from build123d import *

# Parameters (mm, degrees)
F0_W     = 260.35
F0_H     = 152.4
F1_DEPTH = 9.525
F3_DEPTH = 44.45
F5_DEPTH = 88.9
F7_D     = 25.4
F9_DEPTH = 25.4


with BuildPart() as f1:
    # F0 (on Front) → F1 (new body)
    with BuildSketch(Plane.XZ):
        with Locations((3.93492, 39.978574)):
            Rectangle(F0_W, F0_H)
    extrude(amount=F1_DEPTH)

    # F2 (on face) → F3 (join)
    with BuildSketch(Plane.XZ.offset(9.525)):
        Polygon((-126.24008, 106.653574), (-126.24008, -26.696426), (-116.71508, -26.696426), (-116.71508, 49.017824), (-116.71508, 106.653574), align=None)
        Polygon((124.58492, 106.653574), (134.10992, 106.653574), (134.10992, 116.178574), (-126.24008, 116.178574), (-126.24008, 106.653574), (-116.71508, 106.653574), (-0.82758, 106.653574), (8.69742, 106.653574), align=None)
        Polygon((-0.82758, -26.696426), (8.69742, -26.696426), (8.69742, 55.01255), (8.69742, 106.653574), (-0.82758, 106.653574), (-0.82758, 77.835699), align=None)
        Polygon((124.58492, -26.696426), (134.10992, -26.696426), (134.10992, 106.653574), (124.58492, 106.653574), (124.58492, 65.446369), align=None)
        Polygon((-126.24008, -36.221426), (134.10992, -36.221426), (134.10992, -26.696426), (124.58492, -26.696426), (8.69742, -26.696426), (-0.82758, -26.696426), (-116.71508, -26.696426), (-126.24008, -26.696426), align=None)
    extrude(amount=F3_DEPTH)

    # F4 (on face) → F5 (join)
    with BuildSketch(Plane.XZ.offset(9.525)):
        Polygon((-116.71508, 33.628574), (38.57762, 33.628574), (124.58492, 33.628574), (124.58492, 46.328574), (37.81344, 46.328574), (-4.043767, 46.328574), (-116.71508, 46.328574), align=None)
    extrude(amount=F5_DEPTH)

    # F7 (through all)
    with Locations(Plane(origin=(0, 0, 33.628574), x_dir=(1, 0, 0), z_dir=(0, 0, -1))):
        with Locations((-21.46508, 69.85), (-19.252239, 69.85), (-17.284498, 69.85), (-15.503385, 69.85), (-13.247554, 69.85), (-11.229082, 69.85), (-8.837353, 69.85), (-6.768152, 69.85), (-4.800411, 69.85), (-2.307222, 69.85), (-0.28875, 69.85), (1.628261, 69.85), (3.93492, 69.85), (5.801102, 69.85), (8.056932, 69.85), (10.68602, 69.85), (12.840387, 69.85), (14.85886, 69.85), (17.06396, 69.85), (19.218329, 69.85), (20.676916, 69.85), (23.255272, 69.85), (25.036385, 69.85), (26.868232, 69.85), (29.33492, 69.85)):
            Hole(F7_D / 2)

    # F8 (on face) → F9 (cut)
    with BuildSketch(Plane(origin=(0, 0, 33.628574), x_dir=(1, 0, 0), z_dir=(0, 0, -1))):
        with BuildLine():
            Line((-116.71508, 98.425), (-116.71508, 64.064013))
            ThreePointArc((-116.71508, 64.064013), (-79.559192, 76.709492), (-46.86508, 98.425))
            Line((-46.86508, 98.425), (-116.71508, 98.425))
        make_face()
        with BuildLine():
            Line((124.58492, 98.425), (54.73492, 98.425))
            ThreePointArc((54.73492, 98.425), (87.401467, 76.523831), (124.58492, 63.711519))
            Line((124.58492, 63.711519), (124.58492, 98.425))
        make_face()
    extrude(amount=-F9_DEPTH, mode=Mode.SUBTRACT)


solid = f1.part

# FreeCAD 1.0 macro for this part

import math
import FreeCAD as App
import Part
import Sketcher
Q = App.Units.Quantity

doc = App.newDocument("Part")
params = doc.addObject("Spreadsheet::Sheet", "Params")
for row, (alias, value) in enumerate([
    ("sketch1_height", "6 in"),
    ("sketch1_width", "10.25 in"),
    ("pad1_length", "0.375 in"),
    ("sketch2_height", "6 in"),
    ("sketch2_width", "10.25 in"),
    ("sketch2_height2", "5.25 in"),
    ("sketch2_width2", "4.5625 in"),
    ("pad2_length", "1.75 in"),
    ("sketch3_width", "9.5 in"),
    ("sketch3_height", "0.5 in"),
    ("pad3_length", "3.5 in"),
    ("sketch4_diameter", "1 in"),
    ("hole_diameter", "1 in"),
    ("sketch5_width", "2.75 in"),
    ("pocket1_length", "1 in"),
], start=1):
    params.set(f"A{row}", alias)
    params.set(f"B{row}", "=" + value)
    params.setAlias(f"B{row}", alias)

body = doc.addObject("PartDesign::Body", "Body")

# Sketch on XZ plane
sketch1 = doc.addObject("Sketcher::SketchObject", "Sketch")
body.addObject(sketch1)
sketch1.AttachmentSupport = (doc.XZ_Plane, [""])
sketch1.MapMode = "FlatFace"
sketch1.addGeometry(Part.LineSegment(App.Vector(-126, 116, 0), App.Vector(-126, -36, 0)), False)
sketch1.addGeometry(Part.LineSegment(App.Vector(-126, -36, 0), App.Vector(134, -36, 0)), False)
sketch1.addGeometry(Part.LineSegment(App.Vector(134, -36, 0), App.Vector(134, 116, 0)), False)
sketch1.addGeometry(Part.LineSegment(App.Vector(134, 116, 0), App.Vector(-126, 116, 0)), False)
sketch1.addConstraint(Sketcher.Constraint("Coincident", 0, 2, 1, 1))
sketch1.addConstraint(Sketcher.Constraint("Coincident", 1, 2, 2, 1))
sketch1.addConstraint(Sketcher.Constraint("Coincident", 2, 2, 3, 1))
sketch1.addConstraint(Sketcher.Constraint("Coincident", 3, 2, 0, 1))
sketch1.addConstraint(Sketcher.Constraint("Vertical", 0))
sketch1.addConstraint(Sketcher.Constraint("Horizontal", 1))
sketch1.addConstraint(Sketcher.Constraint("Vertical", 2))
sketch1.addConstraint(Sketcher.Constraint("Horizontal", 3))
sketch1.addConstraint(Sketcher.Constraint("DistanceY", 0, 2, 0, 1, Q("6 in")))
sketch1.addConstraint(Sketcher.Constraint("DistanceX", 1, 1, 1, 2, Q("10.25 in")))
sketch1.addConstraint(Sketcher.Constraint("DistanceX", 0, 2, -1, 1, 126.24008))
sketch1.addConstraint(Sketcher.Constraint("DistanceY", 0, 2, -1, 1, 36.221426))
sketch1.setExpression("Constraints[8]", "Params.sketch1_height")
sketch1.setExpression("Constraints[9]", "Params.sketch1_width")
pad1 = doc.addObject("PartDesign::Pad", "Pad")
body.addObject(pad1)
pad1.Profile = sketch1
pad1.setExpression("Length", "Params.pad1_length")

# Sketch on XZ plane
sketch2 = doc.addObject("Sketcher::SketchObject", "Sketch001")
body.addObject(sketch2)
sketch2.AttachmentSupport = (doc.XZ_Plane, [""])
sketch2.MapMode = "FlatFace"
sketch2.AttachmentOffset = App.Placement(App.Vector(0, 0, 0.375 * 25.4), App.Rotation())
sketch2.addGeometry(Part.LineSegment(App.Vector(134, 116, 0), App.Vector(-126, 116, 0)), False)
sketch2.addGeometry(Part.LineSegment(App.Vector(-126, 116, 0), App.Vector(-126, -36, 0)), False)
sketch2.addGeometry(Part.LineSegment(App.Vector(-126, -36, 0), App.Vector(134, -36, 0)), False)
sketch2.addGeometry(Part.LineSegment(App.Vector(134, -36, 0), App.Vector(134, 116, 0)), False)
sketch2.addGeometry(Part.LineSegment(App.Vector(-117, -27, 0), App.Vector(-117, 107, 0)), False)
sketch2.addGeometry(Part.LineSegment(App.Vector(-117, 107, 0), App.Vector(-1, 107, 0)), False)
sketch2.addGeometry(Part.LineSegment(App.Vector(-1, 107, 0), App.Vector(-1, -27, 0)), False)
sketch2.addGeometry(Part.LineSegment(App.Vector(-1, -27, 0), App.Vector(-117, -27, 0)), False)
sketch2.addGeometry(Part.LineSegment(App.Vector(9, -27, 0), App.Vector(9, 107, 0)), False)
sketch2.addGeometry(Part.LineSegment(App.Vector(9, 107, 0), App.Vector(125, 107, 0)), False)
sketch2.addGeometry(Part.LineSegment(App.Vector(125, 107, 0), App.Vector(125, -27, 0)), False)
sketch2.addGeometry(Part.LineSegment(App.Vector(125, -27, 0), App.Vector(9, -27, 0)), False)
sketch2.addConstraint(Sketcher.Constraint("Coincident", 0, 2, 1, 1))
sketch2.addConstraint(Sketcher.Constraint("Coincident", 1, 2, 2, 1))
sketch2.addConstraint(Sketcher.Constraint("Coincident", 2, 2, 3, 1))
sketch2.addConstraint(Sketcher.Constraint("Coincident", 3, 2, 0, 1))
sketch2.addConstraint(Sketcher.Constraint("Coincident", 4, 2, 5, 1))
sketch2.addConstraint(Sketcher.Constraint("Coincident", 5, 2, 6, 1))
sketch2.addConstraint(Sketcher.Constraint("Coincident", 6, 2, 7, 1))
sketch2.addConstraint(Sketcher.Constraint("Coincident", 7, 2, 4, 1))
sketch2.addConstraint(Sketcher.Constraint("Coincident", 8, 2, 9, 1))
sketch2.addConstraint(Sketcher.Constraint("Coincident", 9, 2, 10, 1))
sketch2.addConstraint(Sketcher.Constraint("Coincident", 10, 2, 11, 1))
sketch2.addConstraint(Sketcher.Constraint("Coincident", 11, 2, 8, 1))
sketch2.addConstraint(Sketcher.Constraint("Horizontal", 0))
sketch2.addConstraint(Sketcher.Constraint("Vertical", 1))
sketch2.addConstraint(Sketcher.Constraint("Horizontal", 2))
sketch2.addConstraint(Sketcher.Constraint("Vertical", 3))
sketch2.addConstraint(Sketcher.Constraint("Vertical", 4))
sketch2.addConstraint(Sketcher.Constraint("Horizontal", 5))
sketch2.addConstraint(Sketcher.Constraint("Vertical", 6))
sketch2.addConstraint(Sketcher.Constraint("Horizontal", 7))
sketch2.addConstraint(Sketcher.Constraint("Vertical", 8))
sketch2.addConstraint(Sketcher.Constraint("Horizontal", 9))
sketch2.addConstraint(Sketcher.Constraint("Vertical", 10))
sketch2.addConstraint(Sketcher.Constraint("Horizontal", 11))
sketch2.addConstraint(Sketcher.Constraint("Horizontal", 5, 2, 8, 2))
sketch2.addConstraint(Sketcher.Constraint("Horizontal", 7, 2, 10, 2))
sketch2.addConstraint(Sketcher.Constraint("Equal", 7, 9))
sketch2.addConstraint(Sketcher.Constraint("DistanceY", 1, 2, 1, 1, Q("6 in")))
sketch2.addConstraint(Sketcher.Constraint("DistanceX", 0, 2, 0, 1, Q("10.25 in")))
sketch2.addConstraint(Sketcher.Constraint("DistanceY", 4, 1, 4, 2, Q("5.25 in")))
sketch2.addConstraint(Sketcher.Constraint("DistanceX", 5, 1, 5, 2, Q("4.5625 in")))
sketch2.addConstraint(Sketcher.Constraint("DistanceX", 0, 2, 4, 2, Q("0.375 in")))
sketch2.addConstraint(Sketcher.Constraint("DistanceY", 4, 2, 0, 2, Q("0.375 in")))
sketch2.addConstraint(Sketcher.Constraint("DistanceX", 5, 2, 8, 2, Q("0.375 in")))
sketch2.addConstraint(Sketcher.Constraint("DistanceX", 0, 2, -1, 1, 126.24008))
sketch2.addConstraint(Sketcher.Constraint("DistanceY", -1, 1, 0, 2, 116.178574))
sketch2.setExpression("Constraints[27]", "Params.sketch2_height")
sketch2.setExpression("Constraints[28]", "Params.sketch2_width")
sketch2.setExpression("Constraints[29]", "Params.sketch2_height2")
sketch2.setExpression("Constraints[30]", "Params.sketch2_width2")
pad2 = doc.addObject("PartDesign::Pad", "Pad001")
body.addObject(pad2)
pad2.Profile = sketch2
pad2.setExpression("Length", "Params.pad2_length")

# Sketch on XZ plane
sketch3 = doc.addObject("Sketcher::SketchObject", "Sketch002")
body.addObject(sketch3)
sketch3.AttachmentSupport = (doc.XZ_Plane, [""])
sketch3.MapMode = "FlatFace"
sketch3.AttachmentOffset = App.Placement(App.Vector(0, 0, 0.375 * 25.4), App.Rotation())
sketch3.addGeometry(Part.LineSegment(App.Vector(-117, 34, 0), App.Vector(125, 34, 0)), False)
sketch3.addGeometry(Part.LineSegment(App.Vector(125, 34, 0), App.Vector(125, 46, 0)), False)
sketch3.addGeometry(Part.LineSegment(App.Vector(125, 46, 0), App.Vector(-117, 46, 0)), False)
sketch3.addGeometry(Part.LineSegment(App.Vector(-117, 46, 0), App.Vector(-117, 34, 0)), False)
sketch3.addConstraint(Sketcher.Constraint("Coincident", 0, 2, 1, 1))
sketch3.addConstraint(Sketcher.Constraint("Coincident", 1, 2, 2, 1))
sketch3.addConstraint(Sketcher.Constraint("Coincident", 2, 2, 3, 1))
sketch3.addConstraint(Sketcher.Constraint("Coincident", 3, 2, 0, 1))
sketch3.addConstraint(Sketcher.Constraint("Horizontal", 0))
sketch3.addConstraint(Sketcher.Constraint("Vertical", 1))
sketch3.addConstraint(Sketcher.Constraint("Horizontal", 2))
sketch3.addConstraint(Sketcher.Constraint("Vertical", 3))
sketch3.addConstraint(Sketcher.Constraint("DistanceX", 0, 1, 0, 2, Q("9.5 in")))
sketch3.addConstraint(Sketcher.Constraint("DistanceY", 1, 1, 1, 2, Q("0.5 in")))
sketch3.addConstraint(Sketcher.Constraint("DistanceX", -1, 1, 0, 2, 124.58492))
sketch3.addConstraint(Sketcher.Constraint("DistanceY", -1, 1, 0, 2, 33.628574))
sketch3.setExpression("Constraints[8]", "Params.sketch3_width")
sketch3.setExpression("Constraints[9]", "Params.sketch3_height")
pad3 = doc.addObject("PartDesign::Pad", "Pad002")
body.addObject(pad3)
pad3.Profile = sketch3
pad3.setExpression("Length", "Params.pad3_length")

# Sketch on XY plane
sketch4 = doc.addObject("Sketcher::SketchObject", "Sketch003")
body.addObject(sketch4)
sketch4.AttachmentSupport = (doc.XY_Plane, [""])
sketch4.MapMode = "FlatFace"
sketch4.AttachmentOffset = App.Placement(App.Vector(0, 0, 33.628574), App.Rotation())
sketch4.addGeometry(Part.Circle(App.Vector(-21, -70, 0), App.Vector(0, 0, 1), 13), False)
sketch4.addGeometry(Part.Circle(App.Vector(-19, -70, 0), App.Vector(0, 0, 1), 13), False)
sketch4.addGeometry(Part.Circle(App.Vector(-17, -70, 0), App.Vector(0, 0, 1), 13), False)
sketch4.addGeometry(Part.Circle(App.Vector(-16, -70, 0), App.Vector(0, 0, 1), 13), False)
sketch4.addGeometry(Part.Circle(App.Vector(-13, -70, 0), App.Vector(0, 0, 1), 13), False)
sketch4.addGeometry(Part.Circle(App.Vector(-11, -70, 0), App.Vector(0, 0, 1), 13), False)
sketch4.addGeometry(Part.Circle(App.Vector(-9, -70, 0), App.Vector(0, 0, 1), 13), False)
sketch4.addGeometry(Part.Circle(App.Vector(-7, -70, 0), App.Vector(0, 0, 1), 13), False)
sketch4.addGeometry(Part.Circle(App.Vector(-5, -70, 0), App.Vector(0, 0, 1), 13), False)
sketch4.addGeometry(Part.Circle(App.Vector(-2, -70, 0), App.Vector(0, 0, 1), 13), False)
sketch4.addGeometry(Part.Circle(App.Vector(0, -70, 0), App.Vector(0, 0, 1), 13), False)
sketch4.addGeometry(Part.Circle(App.Vector(2, -70, 0), App.Vector(0, 0, 1), 13), False)
sketch4.addGeometry(Part.Circle(App.Vector(4, -70, 0), App.Vector(0, 0, 1), 13), False)
sketch4.addGeometry(Part.Circle(App.Vector(6, -70, 0), App.Vector(0, 0, 1), 13), False)
sketch4.addGeometry(Part.Circle(App.Vector(8, -70, 0), App.Vector(0, 0, 1), 13), False)
sketch4.addGeometry(Part.Circle(App.Vector(11, -70, 0), App.Vector(0, 0, 1), 13), False)
sketch4.addGeometry(Part.Circle(App.Vector(13, -70, 0), App.Vector(0, 0, 1), 13), False)
sketch4.addGeometry(Part.Circle(App.Vector(15, -70, 0), App.Vector(0, 0, 1), 13), False)
sketch4.addGeometry(Part.Circle(App.Vector(17, -70, 0), App.Vector(0, 0, 1), 13), False)
sketch4.addGeometry(Part.Circle(App.Vector(19, -70, 0), App.Vector(0, 0, 1), 13), False)
sketch4.addGeometry(Part.Circle(App.Vector(21, -70, 0), App.Vector(0, 0, 1), 13), False)
sketch4.addGeometry(Part.Circle(App.Vector(23, -70, 0), App.Vector(0, 0, 1), 13), False)
sketch4.addGeometry(Part.Circle(App.Vector(25, -70, 0), App.Vector(0, 0, 1), 13), False)
sketch4.addGeometry(Part.Circle(App.Vector(27, -70, 0), App.Vector(0, 0, 1), 13), False)
sketch4.addGeometry(Part.Circle(App.Vector(29, -70, 0), App.Vector(0, 0, 1), 13), False)
sketch4.addConstraint(Sketcher.Constraint("Equal", 0, 1))
sketch4.addConstraint(Sketcher.Constraint("Equal", 1, 2))
sketch4.addConstraint(Sketcher.Constraint("Equal", 2, 3))
sketch4.addConstraint(Sketcher.Constraint("Equal", 3, 4))
sketch4.addConstraint(Sketcher.Constraint("Equal", 4, 5))
sketch4.addConstraint(Sketcher.Constraint("Equal", 5, 6))
sketch4.addConstraint(Sketcher.Constraint("Equal", 6, 7))
sketch4.addConstraint(Sketcher.Constraint("Equal", 7, 8))
sketch4.addConstraint(Sketcher.Constraint("Equal", 8, 9))
sketch4.addConstraint(Sketcher.Constraint("Equal", 9, 10))
sketch4.addConstraint(Sketcher.Constraint("Equal", 10, 11))
sketch4.addConstraint(Sketcher.Constraint("Equal", 11, 12))
sketch4.addConstraint(Sketcher.Constraint("Equal", 12, 13))
sketch4.addConstraint(Sketcher.Constraint("Equal", 13, 14))
sketch4.addConstraint(Sketcher.Constraint("Equal", 14, 15))
sketch4.addConstraint(Sketcher.Constraint("Equal", 15, 16))
sketch4.addConstraint(Sketcher.Constraint("Equal", 16, 17))
sketch4.addConstraint(Sketcher.Constraint("Equal", 17, 18))
sketch4.addConstraint(Sketcher.Constraint("Equal", 18, 19))
sketch4.addConstraint(Sketcher.Constraint("Equal", 19, 20))
sketch4.addConstraint(Sketcher.Constraint("Equal", 20, 21))
sketch4.addConstraint(Sketcher.Constraint("Equal", 21, 22))
sketch4.addConstraint(Sketcher.Constraint("Equal", 22, 23))
sketch4.addConstraint(Sketcher.Constraint("Equal", 23, 24))
sketch4.addConstraint(Sketcher.Constraint("Horizontal", 0, 3, 1, 3))
sketch4.addConstraint(Sketcher.Constraint("Horizontal", 1, 3, 2, 3))
sketch4.addConstraint(Sketcher.Constraint("Horizontal", 2, 3, 3, 3))
sketch4.addConstraint(Sketcher.Constraint("Horizontal", 3, 3, 4, 3))
sketch4.addConstraint(Sketcher.Constraint("Horizontal", 4, 3, 5, 3))
sketch4.addConstraint(Sketcher.Constraint("Horizontal", 5, 3, 6, 3))
sketch4.addConstraint(Sketcher.Constraint("Horizontal", 6, 3, 7, 3))
sketch4.addConstraint(Sketcher.Constraint("Horizontal", 7, 3, 8, 3))
sketch4.addConstraint(Sketcher.Constraint("Horizontal", 8, 3, 9, 3))
sketch4.addConstraint(Sketcher.Constraint("Horizontal", 9, 3, 10, 3))
sketch4.addConstraint(Sketcher.Constraint("Horizontal", 10, 3, 11, 3))
sketch4.addConstraint(Sketcher.Constraint("Horizontal", 11, 3, 12, 3))
sketch4.addConstraint(Sketcher.Constraint("Horizontal", 12, 3, 13, 3))
sketch4.addConstraint(Sketcher.Constraint("Horizontal", 13, 3, 14, 3))
sketch4.addConstraint(Sketcher.Constraint("Horizontal", 14, 3, 15, 3))
sketch4.addConstraint(Sketcher.Constraint("Horizontal", 15, 3, 16, 3))
sketch4.addConstraint(Sketcher.Constraint("Horizontal", 16, 3, 17, 3))
sketch4.addConstraint(Sketcher.Constraint("Horizontal", 17, 3, 18, 3))
sketch4.addConstraint(Sketcher.Constraint("Horizontal", 18, 3, 19, 3))
sketch4.addConstraint(Sketcher.Constraint("Horizontal", 19, 3, 20, 3))
sketch4.addConstraint(Sketcher.Constraint("Horizontal", 20, 3, 21, 3))
sketch4.addConstraint(Sketcher.Constraint("Horizontal", 21, 3, 22, 3))
sketch4.addConstraint(Sketcher.Constraint("Horizontal", 22, 3, 23, 3))
sketch4.addConstraint(Sketcher.Constraint("Horizontal", 23, 3, 24, 3))
sketch4.addConstraint(Sketcher.Constraint("Diameter", 0, Q("1 in")))
sketch4.addConstraint(Sketcher.Constraint("DistanceY", 0, 3, -1, 1, Q("2.75 in")))
sketch4.addConstraint(Sketcher.Constraint("DistanceX", 15, 3, 18, 3, Q("0.2511 in")))
sketch4.addConstraint(Sketcher.Constraint("DistanceX", 16, 3, 19, 3, Q("0.2511001 in")))
sketch4.addConstraint(Sketcher.Constraint("DistanceX", 4, 3, 6, 3, 4.410201))
sketch4.addConstraint(Sketcher.Constraint("DistanceX", 6, 3, 7, 3, 2.069201))
sketch4.addConstraint(Sketcher.Constraint("DistanceX", 7, 3, 10, 3, 6.479402))
sketch4.addConstraint(Sketcher.Constraint("DistanceX", 12, 3, 15, 3, 6.7511))
sketch4.addConstraint(Sketcher.Constraint("DistanceX", 17, 3, 18, 3, 2.2051))
sketch4.addConstraint(Sketcher.Constraint("DistanceX", 0, 3, -1, 1, 21.46508))
sketch4.addConstraint(Sketcher.Constraint("DistanceX", 1, 3, -1, 1, 19.252239))
sketch4.addConstraint(Sketcher.Constraint("DistanceX", 7, 3, -1, 1, 6.768152))
sketch4.addConstraint(Sketcher.Constraint("DistanceX", 8, 3, -1, 1, 4.800411))
sketch4.addConstraint(Sketcher.Constraint("DistanceX", 9, 3, -1, 1, 2.307222))
sketch4.addConstraint(Sketcher.Constraint("DistanceX", -1, 1, 11, 3, 1.628261))
sketch4.addConstraint(Sketcher.Constraint("DistanceX", -1, 1, 12, 3, 3.93492))
sketch4.addConstraint(Sketcher.Constraint("DistanceX", -1, 1, 19, 3, 19.218329))
sketch4.addConstraint(Sketcher.Constraint("DistanceX", -1, 1, 23, 3, 26.868232))
sketch4.addConstraint(Sketcher.Constraint("DistanceX", -1, 1, 24, 3, 29.33492))
sketch4.addConstraint(Sketcher.Constraint("DistanceX", 1, 3, 2, 3, 1.967741))
sketch4.addConstraint(Sketcher.Constraint("DistanceX", 3, 3, 4, 3, 2.255831))
sketch4.addConstraint(Sketcher.Constraint("DistanceX", 4, 3, 5, 3, 2.018472))
sketch4.addConstraint(Sketcher.Constraint("DistanceX", 11, 3, 13, 3, 4.172841))
sketch4.addConstraint(Sketcher.Constraint("DistanceX", 13, 3, 14, 3, 2.25583))
sketch4.addConstraint(Sketcher.Constraint("DistanceX", 16, 3, 20, 3, 7.836529))
sketch4.addConstraint(Sketcher.Constraint("DistanceX", 20, 3, 22, 3, 4.359469))
sketch4.addConstraint(Sketcher.Constraint("DistanceX", 21, 3, 23, 3, 3.61296))
sketch4.setExpression("Constraints[48]", "Params.sketch4_diameter")
doc.recompute()
hole = doc.addObject("PartDesign::Hole", "Hole")
body.addObject(hole)
hole.Profile = sketch4
hole.ThreadType = "None"
hole.setExpression("Diameter", "Params.hole_diameter")
hole.DepthType = "ThroughAll"
hole.Reversed = True

# Sketch on XY plane
sketch5 = doc.addObject("Sketcher::SketchObject", "Sketch004")
body.addObject(sketch5)
sketch5.AttachmentSupport = (doc.XY_Plane, [""])
sketch5.MapMode = "FlatFace"
sketch5.AttachmentOffset = App.Placement(App.Vector(0, 0, 33.628574), App.Rotation())
sketch5.addGeometry(Part.LineSegment(App.Vector(-117, -98, 0), App.Vector(-117, -64, 0)), False)
sketch5.addGeometry(Part.ArcOfCircle(Part.Circle(App.Vector(-147, -213, 0), App.Vector(0, 0, 1), 152), math.radians(49), math.radians(79)), False)
sketch5.addGeometry(Part.LineSegment(App.Vector(-47, -98, 0), App.Vector(-117, -98, 0)), False)
sketch5.addGeometry(Part.LineSegment(App.Vector(125, -98, 0), App.Vector(55, -98, 0)), False)
sketch5.addGeometry(Part.ArcOfCircle(Part.Circle(App.Vector(155, -213, 0), App.Vector(0, 0, 1), 152), math.radians(102), math.radians(131)), False)
sketch5.addGeometry(Part.LineSegment(App.Vector(125, -64, 0), App.Vector(125, -98, 0)), False)
sketch5.addConstraint(Sketcher.Constraint("Coincident", 0, 2, 1, 2))
sketch5.addConstraint(Sketcher.Constraint("Coincident", 1, 1, 2, 1))
sketch5.addConstraint(Sketcher.Constraint("Coincident", 2, 2, 0, 1))
sketch5.addConstraint(Sketcher.Constraint("Coincident", 3, 2, 4, 2))
sketch5.addConstraint(Sketcher.Constraint("Coincident", 4, 1, 5, 1))
sketch5.addConstraint(Sketcher.Constraint("Coincident", 5, 2, 3, 1))
sketch5.addConstraint(Sketcher.Constraint("Vertical", 0))
sketch5.addConstraint(Sketcher.Constraint("Horizontal", 2))
sketch5.addConstraint(Sketcher.Constraint("Horizontal", 3))
sketch5.addConstraint(Sketcher.Constraint("Vertical", 5))
sketch5.addConstraint(Sketcher.Constraint("Horizontal", 2, 2, 3, 2))
sketch5.addConstraint(Sketcher.Constraint("Equal", 2, 3))
sketch5.addConstraint(Sketcher.Constraint("DistanceX", 1, 1, 3, 2, Q("4 in")))
sketch5.addConstraint(Sketcher.Constraint("DistanceX", 2, 2, 2, 1, Q("2.75 in")))
sketch5.addConstraint(Sketcher.Constraint("DistanceY", 1, 1, -1, 1, Q("3.875 in")))
sketch5.addConstraint(Sketcher.Constraint("Radius", 1, 152.39999))
sketch5.addConstraint(Sketcher.Constraint("Radius", 4, 152.400014))
sketch5.addConstraint(Sketcher.Constraint("DistanceY", 4, 3, 0, 2, Q("5.8636001 in")))
sketch5.addConstraint(Sketcher.Constraint("DistanceY", 5, 2, 5, 1, 34.713481))
sketch5.addConstraint(Sketcher.Constraint("DistanceX", 0, 2, -1, 1, 116.71508))
sketch5.setExpression("Constraints[13]", "Params.sketch5_width")
pocket1 = doc.addObject("PartDesign::Pocket", "Pocket")
body.addObject(pocket1)
pocket1.Profile = sketch5
pocket1.setExpression("Length", "Params.pocket1_length")
pocket1.Reversed = True

doc.recompute()
